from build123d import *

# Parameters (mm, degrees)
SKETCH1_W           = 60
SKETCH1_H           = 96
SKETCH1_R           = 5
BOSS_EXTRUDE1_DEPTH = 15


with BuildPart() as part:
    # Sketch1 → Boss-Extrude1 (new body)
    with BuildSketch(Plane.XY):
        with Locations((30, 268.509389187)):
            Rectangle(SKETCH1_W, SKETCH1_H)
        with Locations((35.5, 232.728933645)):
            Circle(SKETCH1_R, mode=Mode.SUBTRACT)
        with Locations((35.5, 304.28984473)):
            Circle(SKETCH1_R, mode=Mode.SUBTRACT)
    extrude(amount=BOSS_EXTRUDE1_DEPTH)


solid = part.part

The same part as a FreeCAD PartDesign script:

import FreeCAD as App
import Part
import Sketcher
Q = App.Units.Quantity


def add_polygon(sketch, points):
    """Adds a closed chain of lines whose ends are joined by coincident constraints."""
    first, n = sketch.GeometryCount, len(points)
    for a, b in zip(points, points[1:] + points[:1]):
        sketch.addGeometry(Part.LineSegment(App.Vector(*a, 0), App.Vector(*b, 0)), False)
    for i in range(n):
        sketch.addConstraint(Sketcher.Constraint("Coincident", first + i, 2, first + (i + 1) % n, 1))

doc = App.newDocument("Part")
body = doc.addObject("PartDesign::Body", "Body")

# Sketch on XY plane
sketch1 = body.newObject("Sketcher::SketchObject", "Sketch")
sketch1.AttachmentSupport = (doc.getObject("XY_Plane"), [""])
sketch1.MapMode = "FlatFace"
add_polygon(sketch1, [(0, 316.509389), (0, 220.509389), (60, 220.509389), (60, 316.509389)])  # lines 0-3
sketch1.addGeometry(Part.Circle(App.Vector(35.5, 232.728934, 0), App.Vector(0, 0, 1), 5), False)  # 4
sketch1.addGeometry(Part.Circle(App.Vector(35.5, 304.289845, 0), App.Vector(0, 0, 1), 5), False)  # 5
sketch1.addConstraint(Sketcher.Constraint("Vertical", 0))
sketch1.addConstraint(Sketcher.Constraint("Horizontal", 1))
sketch1.addConstraint(Sketcher.Constraint("Vertical", 2))
sketch1.addConstraint(Sketcher.Constraint("Horizontal", 3))
sketch1.addConstraint(Sketcher.Constraint("Equal", 4, 5))
sketch1.addConstraint(Sketcher.Constraint("PointOnObject", 0, 2, -2))
sketch1.addConstraint(Sketcher.Constraint("Vertical", 4, 3, 5, 3))
sketch1.addConstraint(Sketcher.Constraint("Diameter", 4, Q("10 mm")))
sketch1.addConstraint(Sketcher.Constraint("DistanceX", 1, 1, 1, 2, Q("60 mm")))
sketch1.addConstraint(Sketcher.Constraint("DistanceY", 0, 2, 0, 1, Q("96 mm")))
sketch1.addConstraint(Sketcher.Constraint("DistanceX", -1, 1, 4, 3, Q("35.5 mm")))
sketch1.addConstraint(Sketcher.Constraint("DistanceY", -1, 1, 0, 2, Q("220.509389 mm")))
sketch1.addConstraint(Sketcher.Constraint("DistanceY", 4, 3, 5, 3, Q("71.560911 mm")))
sketch1.addConstraint(Sketcher.Constraint("DistanceY", -1, 1, 4, 3, Q("232.728934 mm")))
pad1 = body.newObject("PartDesign::Pad", "Pad")
pad1.Profile = sketch1
pad1.Length = 15

doc.recompute()
